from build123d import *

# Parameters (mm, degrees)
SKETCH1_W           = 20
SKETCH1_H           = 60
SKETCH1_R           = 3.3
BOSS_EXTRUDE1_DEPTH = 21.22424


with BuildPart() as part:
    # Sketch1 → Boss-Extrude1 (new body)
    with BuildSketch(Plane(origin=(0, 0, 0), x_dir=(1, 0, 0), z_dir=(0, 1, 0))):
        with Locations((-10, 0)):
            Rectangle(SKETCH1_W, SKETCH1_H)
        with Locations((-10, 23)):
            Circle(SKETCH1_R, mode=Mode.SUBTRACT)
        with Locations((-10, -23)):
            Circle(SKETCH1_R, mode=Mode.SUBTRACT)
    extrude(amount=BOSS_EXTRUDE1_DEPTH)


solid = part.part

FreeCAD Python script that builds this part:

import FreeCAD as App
import Part
import Sketcher
Q = App.Units.Quantity


def add_polygon(sketch, points):
    """Adds a closed chain of lines whose ends are joined by coincident constraints."""
    first, n = sketch.GeometryCount, len(points)
    for a, b in zip(points, points[1:] + points[:1]):
        sketch.addGeometry(Part.LineSegment(App.Vector(*a, 0), App.Vector(*b, 0)), False)
    for i in range(n):
        sketch.addConstraint(Sketcher.Constraint("Coincident", first + i, 2, first + (i + 1) % n, 1))

doc = App.newDocument("Part")
body = doc.addObject("PartDesign::Body", "Body")

sketch1 = body.newObject("Sketcher::SketchObject", "Sketch")
sketch1.AttachmentSupport = (doc.getObject("XZ_Plane"), [""])
sketch1.MapMode = "FlatFace"
add_polygon(sketch1, [(-20, -30), (-20, 30), (0, 30), (0, -30)])
sketch1.addGeometry(Part.Circle(App.Vector(-10, 23, 0), App.Vector(0, 0, 1), 3.3), False)
sketch1.addGeometry(Part.Circle(App.Vector(-10, -23, 0), App.Vector(0, 0, 1), 3.3), False)
sketch1.addConstraint([
    Sketcher.Constraint("Vertical", 0),
    Sketcher.Constraint("Horizontal", 1),
    Sketcher.Constraint("Vertical", 2),
    Sketcher.Constraint("Horizontal", 3),
    Sketcher.Constraint("Equal", 4, 5),
    Sketcher.Constraint("Symmetric", 1, 2, 2, 2, -1, 1),
    Sketcher.Constraint("Symmetric", 4, 3, 5, 3, -1),
    Sketcher.Constraint("Diameter", 4, Q("6.6 mm")),
    Sketcher.Constraint("DistanceX", 1, 1, 1, 2, Q("20 mm")),
    Sketcher.Constraint("DistanceY", 0, 1, 0, 2, Q("60 mm")),
    Sketcher.Constraint("DistanceX", 4, 3, -1, 1, Q("10 mm")),
    Sketcher.Constraint("DistanceY", -1, 1, 4, 3, Q("23 mm")),
])
pad1 = body.newObject("PartDesign::Pad", "Pad")
pad1.Profile = sketch1
pad1.Length = 21.22424
pad1.Reversed = True

doc.recompute()
